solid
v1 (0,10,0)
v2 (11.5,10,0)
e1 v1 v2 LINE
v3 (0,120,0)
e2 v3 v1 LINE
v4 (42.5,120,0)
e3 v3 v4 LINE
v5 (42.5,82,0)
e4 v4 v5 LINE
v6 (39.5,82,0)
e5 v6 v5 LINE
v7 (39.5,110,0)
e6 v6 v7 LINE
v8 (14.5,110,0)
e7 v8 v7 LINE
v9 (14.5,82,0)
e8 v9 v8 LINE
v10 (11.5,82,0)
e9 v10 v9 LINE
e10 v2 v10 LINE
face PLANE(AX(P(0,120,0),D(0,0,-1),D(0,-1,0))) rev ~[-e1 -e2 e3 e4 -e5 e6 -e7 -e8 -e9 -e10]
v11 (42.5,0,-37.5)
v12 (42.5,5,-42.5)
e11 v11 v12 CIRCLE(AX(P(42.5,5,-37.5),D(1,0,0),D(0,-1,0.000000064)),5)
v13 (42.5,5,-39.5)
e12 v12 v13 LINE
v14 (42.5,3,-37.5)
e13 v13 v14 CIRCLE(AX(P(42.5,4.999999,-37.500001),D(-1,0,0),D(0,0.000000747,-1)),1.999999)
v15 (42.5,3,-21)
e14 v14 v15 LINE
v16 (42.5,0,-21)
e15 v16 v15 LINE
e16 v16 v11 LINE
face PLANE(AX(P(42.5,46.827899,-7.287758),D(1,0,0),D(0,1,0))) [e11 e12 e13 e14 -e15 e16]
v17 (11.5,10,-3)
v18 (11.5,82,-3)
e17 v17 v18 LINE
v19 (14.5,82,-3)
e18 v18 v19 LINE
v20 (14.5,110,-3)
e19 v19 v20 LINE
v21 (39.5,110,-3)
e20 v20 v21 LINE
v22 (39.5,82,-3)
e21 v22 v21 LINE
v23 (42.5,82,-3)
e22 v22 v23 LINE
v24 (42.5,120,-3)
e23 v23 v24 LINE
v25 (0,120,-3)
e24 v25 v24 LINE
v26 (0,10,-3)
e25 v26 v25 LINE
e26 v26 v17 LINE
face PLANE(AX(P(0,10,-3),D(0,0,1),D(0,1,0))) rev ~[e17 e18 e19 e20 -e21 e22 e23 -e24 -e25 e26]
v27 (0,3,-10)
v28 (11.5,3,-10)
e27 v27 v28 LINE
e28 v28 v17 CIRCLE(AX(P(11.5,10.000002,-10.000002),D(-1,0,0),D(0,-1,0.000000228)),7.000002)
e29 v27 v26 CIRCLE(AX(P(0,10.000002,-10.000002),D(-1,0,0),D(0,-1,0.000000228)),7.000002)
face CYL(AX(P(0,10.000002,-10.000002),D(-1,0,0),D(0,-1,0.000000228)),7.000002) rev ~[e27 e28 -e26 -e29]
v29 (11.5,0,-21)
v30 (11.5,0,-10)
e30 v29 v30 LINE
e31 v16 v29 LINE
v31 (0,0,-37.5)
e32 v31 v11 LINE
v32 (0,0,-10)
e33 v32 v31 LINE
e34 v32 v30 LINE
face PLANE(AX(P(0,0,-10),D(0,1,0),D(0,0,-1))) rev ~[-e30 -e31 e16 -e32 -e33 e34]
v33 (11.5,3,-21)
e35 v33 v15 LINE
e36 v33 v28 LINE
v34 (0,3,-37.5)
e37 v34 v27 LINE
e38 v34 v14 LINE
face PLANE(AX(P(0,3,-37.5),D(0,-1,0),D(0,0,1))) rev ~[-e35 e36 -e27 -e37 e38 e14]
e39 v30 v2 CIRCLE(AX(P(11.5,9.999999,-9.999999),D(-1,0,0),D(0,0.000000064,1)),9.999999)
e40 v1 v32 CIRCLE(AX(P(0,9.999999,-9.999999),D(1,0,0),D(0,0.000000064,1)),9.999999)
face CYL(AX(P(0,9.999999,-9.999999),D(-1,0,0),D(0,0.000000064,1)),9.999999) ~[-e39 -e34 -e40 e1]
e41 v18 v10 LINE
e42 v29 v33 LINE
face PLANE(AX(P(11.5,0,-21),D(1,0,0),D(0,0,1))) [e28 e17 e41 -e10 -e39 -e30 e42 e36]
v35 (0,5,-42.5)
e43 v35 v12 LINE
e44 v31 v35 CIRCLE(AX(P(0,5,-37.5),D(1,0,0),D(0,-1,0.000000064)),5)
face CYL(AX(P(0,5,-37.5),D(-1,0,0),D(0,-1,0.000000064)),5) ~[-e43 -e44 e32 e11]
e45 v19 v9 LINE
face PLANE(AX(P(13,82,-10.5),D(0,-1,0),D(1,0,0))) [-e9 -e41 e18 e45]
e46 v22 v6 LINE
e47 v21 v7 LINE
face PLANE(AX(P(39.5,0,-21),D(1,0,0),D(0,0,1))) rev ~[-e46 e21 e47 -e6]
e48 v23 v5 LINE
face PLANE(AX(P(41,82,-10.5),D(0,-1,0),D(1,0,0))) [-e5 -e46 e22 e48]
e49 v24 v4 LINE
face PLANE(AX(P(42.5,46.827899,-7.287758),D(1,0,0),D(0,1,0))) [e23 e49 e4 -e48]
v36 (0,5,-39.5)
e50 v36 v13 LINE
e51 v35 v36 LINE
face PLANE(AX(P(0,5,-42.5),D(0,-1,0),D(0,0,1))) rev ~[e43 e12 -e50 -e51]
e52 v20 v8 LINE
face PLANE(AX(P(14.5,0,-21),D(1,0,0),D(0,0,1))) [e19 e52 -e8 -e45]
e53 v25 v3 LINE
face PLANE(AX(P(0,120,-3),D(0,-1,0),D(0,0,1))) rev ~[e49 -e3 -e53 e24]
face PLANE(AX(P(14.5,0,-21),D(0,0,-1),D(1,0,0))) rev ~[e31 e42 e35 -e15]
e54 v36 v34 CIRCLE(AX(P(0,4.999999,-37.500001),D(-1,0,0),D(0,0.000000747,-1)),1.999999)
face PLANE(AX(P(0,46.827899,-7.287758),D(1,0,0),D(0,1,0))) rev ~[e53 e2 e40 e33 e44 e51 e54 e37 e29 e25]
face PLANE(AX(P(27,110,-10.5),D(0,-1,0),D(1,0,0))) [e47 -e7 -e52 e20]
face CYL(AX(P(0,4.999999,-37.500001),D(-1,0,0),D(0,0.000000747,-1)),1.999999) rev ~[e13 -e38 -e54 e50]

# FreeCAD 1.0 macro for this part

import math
import FreeCAD as App
import Part
import Sketcher
Q = App.Units.Quantity

doc = App.newDocument("Part")
body = doc.addObject("PartDesign::Body", "Body")

sketch1 = doc.addObject("Sketcher::SketchObject", "Sketch")
body.addObject(sketch1)
sketch1.AttachmentSupport = (doc.YZ_Plane, [""])
sketch1.MapMode = "FlatFace"
sketch1.addGeometry([
    Part.LineSegment(App.Vector(120, -3, 0), App.Vector(120, 0, 0)),
    Part.LineSegment(App.Vector(120, 0, 0), App.Vector(10, 0, 0)),
    Part.ArcOfCircle(Part.Circle(App.Vector(9.999999, -9.999999, 0), App.Vector(0, 0, 1), 9.999999), math.radians(89.999996), math.radians(180.000004)),
    Part.LineSegment(App.Vector(0, -10, 0), App.Vector(0, -37.5, 0)),
    Part.ArcOfCircle(Part.Circle(App.Vector(5, -37.5, 0), App.Vector(0, 0, 1), 5), math.radians(179.999996), math.radians(270.000004)),
    Part.LineSegment(App.Vector(5, -42.5, 0), App.Vector(5, -39.5, 0)),
    Part.ArcOfCircle(Part.Circle(App.Vector(4.999999, -37.500001, 0), App.Vector(0, 0, 1), 1.999999), math.radians(179.999957), math.radians(270.000043)),
    Part.LineSegment(App.Vector(3, -37.5, 0), App.Vector(3, -10, 0)),
    Part.ArcOfCircle(Part.Circle(App.Vector(10.000002, -10.000002, 0), App.Vector(0, 0, 1), 7.000002), math.radians(90.000013), math.radians(179.999987)),
    Part.LineSegment(App.Vector(10, -3, 0), App.Vector(120, -3, 0)),
], False)
sketch1.addConstraint([
    Sketcher.Constraint("Coincident", 0, 2, 1, 1),
    Sketcher.Constraint("Tangent", 1, 2, 2, 1),
    Sketcher.Constraint("Tangent", 2, 2, 3, 1),
    Sketcher.Constraint("Tangent", 3, 2, 4, 1),
    Sketcher.Constraint("Coincident", 4, 2, 5, 1),
    Sketcher.Constraint("Coincident", 5, 2, 6, 2),
    Sketcher.Constraint("Tangent", 6, 1, 7, 1),
    Sketcher.Constraint("Tangent", 7, 2, 8, 2),
    Sketcher.Constraint("Tangent", 8, 1, 9, 1),
    Sketcher.Constraint("Coincident", 9, 2, 0, 1),
    Sketcher.Constraint("Vertical", 0),
    Sketcher.Constraint("Horizontal", 1),
    Sketcher.Constraint("Vertical", 3),
    Sketcher.Constraint("Vertical", 5),
    Sketcher.Constraint("Vertical", 7),
    Sketcher.Constraint("Horizontal", 9),
    Sketcher.Constraint("Coincident", 6, 3, 4, 3),
    Sketcher.Constraint("Coincident", 8, 3, 2, 3),
    Sketcher.Constraint("PointOnObject", 0, 2, -1),
    Sketcher.Constraint("PointOnObject", 2, 2, -2),
    Sketcher.Constraint("Vertical", 6, 3, 4, 2),
    Sketcher.Constraint("Radius", 2, Q("9.999999 mm")),
    Sketcher.Constraint("Radius", 4, Q("5 mm")),
    Sketcher.Constraint("Radius", 6, Q("1.999999 mm")),
    Sketcher.Constraint("DistanceX", 1, 2, 1, 1, Q("110 mm")),
    Sketcher.Constraint("DistanceY", 3, 2, 3, 1, Q("27.5 mm")),
])
pad1 = doc.addObject("PartDesign::Pad", "Pad")
body.addObject(pad1)
pad1.Profile = sketch1
pad1.Length = 42.5

sketch2 = doc.addObject("Sketcher::SketchObject", "Sketch001")
body.addObject(sketch2)
sketch2.AttachmentSupport = (doc.XZ_Plane, [""])
sketch2.MapMode = "FlatFace"
sketch2.addGeometry([
    Part.LineSegment(App.Vector(14.5, 0, 0), App.Vector(14.5, -21, 0)),
    Part.LineSegment(App.Vector(14.5, -21, 0), App.Vector(39.5, -21, 0)),
    Part.LineSegment(App.Vector(39.5, -21, 0), App.Vector(39.5, 0, 0)),
    Part.LineSegment(App.Vector(39.5, 0, 0), App.Vector(14.5, 0, 0)),
], False)
sketch2.addConstraint([
    Sketcher.Constraint("Coincident", 0, 2, 1, 1),
    Sketcher.Constraint("Coincident", 1, 2, 2, 1),
    Sketcher.Constraint("Coincident", 2, 2, 3, 1),
    Sketcher.Constraint("Coincident", 3, 2, 0, 1),
    Sketcher.Constraint("Vertical", 0),
    Sketcher.Constraint("Horizontal", 1),
    Sketcher.Constraint("Vertical", 2),
    Sketcher.Constraint("Horizontal", 3),
    Sketcher.Constraint("PointOnObject", 2, 2, -1),
    Sketcher.Constraint("DistanceX", 1, 1, 1, 2, Q("25 mm")),
    Sketcher.Constraint("DistanceY", 0, 2, 0, 1, Q("21 mm")),
    Sketcher.Constraint("DistanceX", -1, 1, 0, 2, Q("14.5 mm")),
])
pocket1 = doc.addObject("PartDesign::Pocket", "Pocket")
body.addObject(pocket1)
pocket1.Profile = sketch2
pocket1.Length = 110

sketch3 = doc.addObject("Sketcher::SketchObject", "Sketch002")
body.addObject(sketch3)
sketch3.AttachmentSupport = (doc.XZ_Plane, [""])
sketch3.MapMode = "FlatFace"
sketch3.addGeometry([
    Part.LineSegment(App.Vector(11.5, 0, 0), App.Vector(11.5, -21, 0)),
    Part.LineSegment(App.Vector(11.5, -21, 0), App.Vector(14.5, -21, 0)),
    Part.LineSegment(App.Vector(14.5, -21, 0), App.Vector(14.5, 0, 0)),
    Part.LineSegment(App.Vector(14.5, 0, 0), App.Vector(11.5, 0, 0)),
], False)
sketch3.addConstraint([
    Sketcher.Constraint("Coincident", 0, 2, 1, 1),
    Sketcher.Constraint("Coincident", 1, 2, 2, 1),
    Sketcher.Constraint("Coincident", 2, 2, 3, 1),
    Sketcher.Constraint("Coincident", 3, 2, 0, 1),
    Sketcher.Constraint("Vertical", 0),
    Sketcher.Constraint("Horizontal", 1),
    Sketcher.Constraint("Vertical", 2),
    Sketcher.Constraint("Horizontal", 3),
    Sketcher.Constraint("PointOnObject", 2, 2, -1),
    Sketcher.Constraint("DistanceX", 1, 1, 1, 2, Q("3 mm")),
    Sketcher.Constraint("DistanceY", 0, 2, 0, 1, Q("21 mm")),
    Sketcher.Constraint("DistanceX", -1, 1, 0, 2, Q("11.5 mm")),
])
pocket2 = doc.addObject("PartDesign::Pocket", "Pocket001")
body.addObject(pocket2)
pocket2.Profile = sketch3
pocket2.Length = 82

sketch4 = doc.addObject("Sketcher::SketchObject", "Sketch003")
body.addObject(sketch4)
sketch4.AttachmentSupport = (doc.XZ_Plane, [""])
sketch4.MapMode = "FlatFace"
sketch4.addGeometry([
    Part.LineSegment(App.Vector(39.5, 0, 0), App.Vector(39.5, -21, 0)),
    Part.LineSegment(App.Vector(39.5, -21, 0), App.Vector(42.5, -21, 0)),
    Part.LineSegment(App.Vector(42.5, -21, 0), App.Vector(42.5, 0, 0)),
    Part.LineSegment(App.Vector(42.5, 0, 0), App.Vector(39.5, 0, 0)),
], False)
sketch4.addConstraint([
    Sketcher.Constraint("Coincident", 0, 2, 1, 1),
    Sketcher.Constraint("Coincident", 1, 2, 2, 1),
    Sketcher.Constraint("Coincident", 2, 2, 3, 1),
    Sketcher.Constraint("Coincident", 3, 2, 0, 1),
    Sketcher.Constraint("Vertical", 0),
    Sketcher.Constraint("Horizontal", 1),
    Sketcher.Constraint("Vertical", 2),
    Sketcher.Constraint("Horizontal", 3),
    Sketcher.Constraint("PointOnObject", 2, 2, -1),
    Sketcher.Constraint("DistanceX", 1, 1, 1, 2, Q("3 mm")),
    Sketcher.Constraint("DistanceY", 0, 2, 0, 1, Q("21 mm")),
    Sketcher.Constraint("DistanceX", -1, 1, 0, 2, Q("39.5 mm")),
])
pocket3 = doc.addObject("PartDesign::Pocket", "Pocket002")
body.addObject(pocket3)
pocket3.Profile = sketch4
pocket3.Length = 82

doc.recompute()
